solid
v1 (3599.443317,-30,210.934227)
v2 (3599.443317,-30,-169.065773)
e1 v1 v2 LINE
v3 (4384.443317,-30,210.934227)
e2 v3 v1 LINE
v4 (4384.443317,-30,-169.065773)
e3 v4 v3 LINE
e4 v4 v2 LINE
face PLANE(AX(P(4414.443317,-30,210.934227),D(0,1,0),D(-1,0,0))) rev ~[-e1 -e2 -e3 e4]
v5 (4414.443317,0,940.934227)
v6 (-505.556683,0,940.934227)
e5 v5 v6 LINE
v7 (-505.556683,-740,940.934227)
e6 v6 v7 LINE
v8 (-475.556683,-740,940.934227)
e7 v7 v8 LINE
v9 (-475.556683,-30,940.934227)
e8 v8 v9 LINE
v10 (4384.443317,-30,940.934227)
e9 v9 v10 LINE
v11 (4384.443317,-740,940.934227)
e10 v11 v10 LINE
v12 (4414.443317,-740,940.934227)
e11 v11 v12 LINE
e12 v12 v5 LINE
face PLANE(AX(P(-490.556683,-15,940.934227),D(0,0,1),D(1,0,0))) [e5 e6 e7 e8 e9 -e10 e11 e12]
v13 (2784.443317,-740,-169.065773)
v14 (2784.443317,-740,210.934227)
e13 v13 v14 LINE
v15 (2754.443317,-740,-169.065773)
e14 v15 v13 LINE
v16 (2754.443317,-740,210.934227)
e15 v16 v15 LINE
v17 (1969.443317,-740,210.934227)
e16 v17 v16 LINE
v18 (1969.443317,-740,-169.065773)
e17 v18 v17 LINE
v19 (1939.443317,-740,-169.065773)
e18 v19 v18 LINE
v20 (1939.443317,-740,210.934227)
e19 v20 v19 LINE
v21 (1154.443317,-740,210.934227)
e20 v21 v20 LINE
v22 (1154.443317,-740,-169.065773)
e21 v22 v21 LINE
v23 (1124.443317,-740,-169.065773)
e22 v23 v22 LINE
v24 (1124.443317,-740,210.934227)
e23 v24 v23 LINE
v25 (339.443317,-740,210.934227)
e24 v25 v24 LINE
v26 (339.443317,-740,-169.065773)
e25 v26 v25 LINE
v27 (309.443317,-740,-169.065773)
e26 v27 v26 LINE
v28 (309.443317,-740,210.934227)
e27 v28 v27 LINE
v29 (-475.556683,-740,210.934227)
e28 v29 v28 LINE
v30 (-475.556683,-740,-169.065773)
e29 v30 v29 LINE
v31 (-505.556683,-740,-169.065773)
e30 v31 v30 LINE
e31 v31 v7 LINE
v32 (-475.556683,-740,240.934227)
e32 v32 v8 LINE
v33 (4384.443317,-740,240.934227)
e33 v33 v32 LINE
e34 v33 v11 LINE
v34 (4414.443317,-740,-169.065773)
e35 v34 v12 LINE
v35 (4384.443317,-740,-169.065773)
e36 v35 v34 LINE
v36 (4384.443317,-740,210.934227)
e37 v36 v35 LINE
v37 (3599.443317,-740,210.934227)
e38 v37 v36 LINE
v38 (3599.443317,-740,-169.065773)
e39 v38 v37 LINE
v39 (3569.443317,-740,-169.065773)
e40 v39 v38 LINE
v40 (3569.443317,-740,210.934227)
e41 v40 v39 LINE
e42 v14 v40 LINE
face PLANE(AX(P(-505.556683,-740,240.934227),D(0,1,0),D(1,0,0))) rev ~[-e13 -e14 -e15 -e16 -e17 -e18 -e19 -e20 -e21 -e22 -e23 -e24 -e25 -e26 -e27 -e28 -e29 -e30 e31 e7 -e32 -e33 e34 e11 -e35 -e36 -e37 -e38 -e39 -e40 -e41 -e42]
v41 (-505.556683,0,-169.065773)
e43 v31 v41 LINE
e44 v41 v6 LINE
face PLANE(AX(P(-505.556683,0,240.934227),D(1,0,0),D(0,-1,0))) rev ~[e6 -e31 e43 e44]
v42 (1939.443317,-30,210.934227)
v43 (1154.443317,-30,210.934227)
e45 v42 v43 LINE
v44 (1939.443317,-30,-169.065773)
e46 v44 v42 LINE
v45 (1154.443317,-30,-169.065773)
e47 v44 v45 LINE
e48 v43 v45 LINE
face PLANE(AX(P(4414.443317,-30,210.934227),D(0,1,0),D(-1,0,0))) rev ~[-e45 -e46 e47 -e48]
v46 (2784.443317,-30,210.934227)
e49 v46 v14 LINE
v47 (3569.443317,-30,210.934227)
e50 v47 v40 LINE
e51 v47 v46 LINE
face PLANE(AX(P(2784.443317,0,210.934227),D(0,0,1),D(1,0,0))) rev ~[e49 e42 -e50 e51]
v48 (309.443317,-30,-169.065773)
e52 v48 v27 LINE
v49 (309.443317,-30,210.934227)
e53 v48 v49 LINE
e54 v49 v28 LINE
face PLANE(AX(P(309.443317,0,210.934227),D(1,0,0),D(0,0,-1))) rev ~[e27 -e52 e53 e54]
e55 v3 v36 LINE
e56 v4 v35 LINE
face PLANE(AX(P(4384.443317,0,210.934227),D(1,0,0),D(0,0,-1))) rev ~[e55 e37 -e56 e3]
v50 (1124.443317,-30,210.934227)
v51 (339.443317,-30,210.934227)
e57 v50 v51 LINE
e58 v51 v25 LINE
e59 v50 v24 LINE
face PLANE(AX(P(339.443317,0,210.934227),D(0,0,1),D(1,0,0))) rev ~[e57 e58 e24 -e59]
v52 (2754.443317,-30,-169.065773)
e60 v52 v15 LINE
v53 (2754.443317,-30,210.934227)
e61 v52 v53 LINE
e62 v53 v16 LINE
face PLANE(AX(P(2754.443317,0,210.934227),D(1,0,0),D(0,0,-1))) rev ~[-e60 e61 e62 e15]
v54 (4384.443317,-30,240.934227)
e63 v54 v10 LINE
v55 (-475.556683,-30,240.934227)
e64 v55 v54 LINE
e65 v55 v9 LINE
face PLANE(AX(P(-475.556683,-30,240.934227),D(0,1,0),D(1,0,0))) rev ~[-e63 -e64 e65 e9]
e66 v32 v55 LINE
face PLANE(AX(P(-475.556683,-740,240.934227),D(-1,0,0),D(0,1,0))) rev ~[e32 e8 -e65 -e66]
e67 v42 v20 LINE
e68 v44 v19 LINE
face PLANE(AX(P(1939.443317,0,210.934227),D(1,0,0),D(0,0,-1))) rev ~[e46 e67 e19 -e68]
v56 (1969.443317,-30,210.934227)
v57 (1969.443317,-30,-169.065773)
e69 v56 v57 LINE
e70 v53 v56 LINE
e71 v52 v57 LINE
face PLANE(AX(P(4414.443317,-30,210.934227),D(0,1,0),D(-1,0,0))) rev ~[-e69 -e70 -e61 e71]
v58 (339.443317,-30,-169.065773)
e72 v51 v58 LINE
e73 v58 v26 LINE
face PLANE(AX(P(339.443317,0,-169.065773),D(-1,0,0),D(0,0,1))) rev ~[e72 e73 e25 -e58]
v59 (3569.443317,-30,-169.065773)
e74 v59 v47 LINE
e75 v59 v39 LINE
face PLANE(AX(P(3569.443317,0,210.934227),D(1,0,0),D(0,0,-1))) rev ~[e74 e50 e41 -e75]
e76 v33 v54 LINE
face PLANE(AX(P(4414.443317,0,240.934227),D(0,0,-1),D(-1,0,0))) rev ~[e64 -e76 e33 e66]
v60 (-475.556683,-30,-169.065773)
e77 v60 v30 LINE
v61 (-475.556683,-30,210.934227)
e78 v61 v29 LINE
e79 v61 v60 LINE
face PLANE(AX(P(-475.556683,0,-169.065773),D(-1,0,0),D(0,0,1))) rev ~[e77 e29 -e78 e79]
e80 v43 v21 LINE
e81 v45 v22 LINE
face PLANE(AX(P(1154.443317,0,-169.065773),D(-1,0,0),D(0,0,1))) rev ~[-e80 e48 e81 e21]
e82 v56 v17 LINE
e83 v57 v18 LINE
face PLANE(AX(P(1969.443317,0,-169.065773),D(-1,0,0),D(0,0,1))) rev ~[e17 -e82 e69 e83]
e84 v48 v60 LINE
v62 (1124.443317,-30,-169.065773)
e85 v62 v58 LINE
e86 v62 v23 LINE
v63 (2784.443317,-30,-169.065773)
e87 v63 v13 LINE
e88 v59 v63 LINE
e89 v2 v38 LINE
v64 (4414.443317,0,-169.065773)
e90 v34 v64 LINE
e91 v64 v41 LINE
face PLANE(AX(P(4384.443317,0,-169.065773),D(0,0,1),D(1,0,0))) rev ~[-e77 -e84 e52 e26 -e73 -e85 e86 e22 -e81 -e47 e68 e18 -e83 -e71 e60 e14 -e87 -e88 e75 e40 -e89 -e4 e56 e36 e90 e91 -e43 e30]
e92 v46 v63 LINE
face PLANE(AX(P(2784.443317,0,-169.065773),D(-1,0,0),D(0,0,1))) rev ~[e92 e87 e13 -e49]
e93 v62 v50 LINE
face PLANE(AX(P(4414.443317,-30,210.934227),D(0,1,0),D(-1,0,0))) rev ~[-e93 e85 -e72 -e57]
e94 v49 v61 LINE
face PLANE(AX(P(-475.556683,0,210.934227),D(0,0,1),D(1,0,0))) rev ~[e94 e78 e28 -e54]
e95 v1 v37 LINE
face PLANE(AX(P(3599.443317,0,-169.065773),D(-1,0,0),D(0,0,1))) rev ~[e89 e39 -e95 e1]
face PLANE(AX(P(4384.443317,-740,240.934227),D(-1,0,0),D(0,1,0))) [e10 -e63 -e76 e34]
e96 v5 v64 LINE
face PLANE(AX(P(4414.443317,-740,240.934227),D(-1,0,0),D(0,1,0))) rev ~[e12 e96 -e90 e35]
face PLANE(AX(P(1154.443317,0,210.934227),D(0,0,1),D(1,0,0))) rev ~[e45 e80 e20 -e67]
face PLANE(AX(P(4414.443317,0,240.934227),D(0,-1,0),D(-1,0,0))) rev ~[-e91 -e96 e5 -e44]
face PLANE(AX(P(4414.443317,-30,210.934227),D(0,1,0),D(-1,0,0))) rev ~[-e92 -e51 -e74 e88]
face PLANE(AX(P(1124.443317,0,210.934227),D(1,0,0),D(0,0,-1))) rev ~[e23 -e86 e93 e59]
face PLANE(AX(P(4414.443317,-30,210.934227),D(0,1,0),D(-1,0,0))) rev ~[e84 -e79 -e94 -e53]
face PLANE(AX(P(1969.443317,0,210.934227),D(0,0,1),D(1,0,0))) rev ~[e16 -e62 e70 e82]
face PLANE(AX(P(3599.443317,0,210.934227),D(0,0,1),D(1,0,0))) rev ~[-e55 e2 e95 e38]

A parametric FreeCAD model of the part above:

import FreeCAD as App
import Part
import Sketcher

V = App.Vector
Q = App.Units.Quantity


def add_polygon(sketch, points):
    """Adds a closed chain of lines whose ends are joined by coincident constraints."""
    first, n = sketch.GeometryCount, len(points)
    for a, b in zip(points, points[1:] + points[:1]):
        sketch.addGeometry(Part.LineSegment(App.Vector(*a, 0), App.Vector(*b, 0)), False)
    for i in range(n):
        sketch.addConstraint(Sketcher.Constraint("Coincident", first + i, 2, first + (i + 1) % n, 1))

doc = App.newDocument("Part")
params = doc.addObject("Spreadsheet::Sheet", "Params")
for row, (alias, value) in enumerate([
    ("sketch1_width", "4920 mm"),
    ("sketch1_width2", "30 mm"),
    ("sketch1_height", "410 mm"),
    ("sketch1_height2", "380 mm"),
    ("pad1_length", "740 mm"),
    ("sketch2_width", "30 mm"),
    ("sketch2_width2", "4860 mm"),
    ("sketch2_height", "740 mm"),
    ("sketch2_height2", "710 mm"),
    ("pad2_length", "700 mm"),
    ("sketch3_width", "4920 mm"),
    ("sketch3_height", "30 mm"),
], start=1):
    params.set(f"A{row}", alias)
    params.set(f"B{row}", "=" + value)
    params.setAlias(f"B{row}", alias)

body = doc.addObject("PartDesign::Body", "Body")

# Sketch on XZ plane
sketch1 = body.newObject("Sketcher::SketchObject", "Sketch")
sketch1.AttachmentSupport = (doc.getObject("XZ_Plane"), [""])
sketch1.MapMode = "FlatFace"
add_polygon(sketch1, [(4414, 241), (-506, 241), (-506, -169), (-476, -169), (-476, 211), (309, 211), (309, -169), (339, -169), (339, 211), (1124, 211), (1124, -169), (1154, -169), (1154, 211), (1939, 211), (1939, -169), (1969, -169), (1969, 211), (2754, 211), (2754, -169), (2784, -169), (2784, 211), (3569, 211), (3569, -169), (3599, -169), (3599, 211), (4384, 211), (4384, -169), (4414, -169)])  # lines 0-27
sketch1.addConstraint(Sketcher.Constraint("Horizontal", 0))
sketch1.addConstraint(Sketcher.Constraint("Vertical", 1))
sketch1.addConstraint(Sketcher.Constraint("Horizontal", 2))
sketch1.addConstraint(Sketcher.Constraint("Vertical", 3))
sketch1.addConstraint(Sketcher.Constraint("Horizontal", 4))
sketch1.addConstraint(Sketcher.Constraint("Vertical", 5))
sketch1.addConstraint(Sketcher.Constraint("Horizontal", 6))
sketch1.addConstraint(Sketcher.Constraint("Vertical", 7))
sketch1.addConstraint(Sketcher.Constraint("Horizontal", 8))
sketch1.addConstraint(Sketcher.Constraint("Vertical", 9))
sketch1.addConstraint(Sketcher.Constraint("Horizontal", 10))
sketch1.addConstraint(Sketcher.Constraint("Vertical", 11))
sketch1.addConstraint(Sketcher.Constraint("Horizontal", 12))
sketch1.addConstraint(Sketcher.Constraint("Vertical", 13))
sketch1.addConstraint(Sketcher.Constraint("Horizontal", 14))
sketch1.addConstraint(Sketcher.Constraint("Vertical", 15))
sketch1.addConstraint(Sketcher.Constraint("Horizontal", 16))
sketch1.addConstraint(Sketcher.Constraint("Vertical", 17))
sketch1.addConstraint(Sketcher.Constraint("Horizontal", 18))
sketch1.addConstraint(Sketcher.Constraint("Vertical", 19))
sketch1.addConstraint(Sketcher.Constraint("Horizontal", 20))
sketch1.addConstraint(Sketcher.Constraint("Vertical", 21))
sketch1.addConstraint(Sketcher.Constraint("Horizontal", 22))
sketch1.addConstraint(Sketcher.Constraint("Vertical", 23))
sketch1.addConstraint(Sketcher.Constraint("Horizontal", 24))
sketch1.addConstraint(Sketcher.Constraint("Vertical", 25))
sketch1.addConstraint(Sketcher.Constraint("Horizontal", 26))
sketch1.addConstraint(Sketcher.Constraint("Vertical", 27))
sketch1.addConstraint(Sketcher.Constraint("Horizontal", 2, 2, 5, 2))
sketch1.addConstraint(Sketcher.Constraint("Horizontal", 4, 2, 7, 2))
sketch1.addConstraint(Sketcher.Constraint("Horizontal", 6, 2, 9, 2))
sketch1.addConstraint(Sketcher.Constraint("Horizontal", 8, 2, 11, 2))
sketch1.addConstraint(Sketcher.Constraint("Horizontal", 10, 2, 13, 2))
sketch1.addConstraint(Sketcher.Constraint("Horizontal", 12, 2, 15, 2))
sketch1.addConstraint(Sketcher.Constraint("Horizontal", 14, 2, 17, 2))
sketch1.addConstraint(Sketcher.Constraint("Horizontal", 16, 2, 19, 2))
sketch1.addConstraint(Sketcher.Constraint("Horizontal", 18, 2, 21, 2))
sketch1.addConstraint(Sketcher.Constraint("Horizontal", 20, 2, 23, 2))
sketch1.addConstraint(Sketcher.Constraint("Horizontal", 22, 2, 25, 2))
sketch1.addConstraint(Sketcher.Constraint("Equal", 2, 6))
sketch1.addConstraint(Sketcher.Constraint("Equal", 4, 8))
sketch1.addConstraint(Sketcher.Constraint("Equal", 6, 10))
sketch1.addConstraint(Sketcher.Constraint("Equal", 8, 12))
sketch1.addConstraint(Sketcher.Constraint("Equal", 10, 14))
sketch1.addConstraint(Sketcher.Constraint("Equal", 12, 16))
sketch1.addConstraint(Sketcher.Constraint("Equal", 14, 18))
sketch1.addConstraint(Sketcher.Constraint("Equal", 16, 20))
sketch1.addConstraint(Sketcher.Constraint("Equal", 18, 22))
sketch1.addConstraint(Sketcher.Constraint("Equal", 20, 24))
sketch1.addConstraint(Sketcher.Constraint("Equal", 22, 26))
sketch1.addConstraint(Sketcher.Constraint("DistanceX", 0, 2, 0, 1, Q("4920 mm")))
sketch1.addConstraint(Sketcher.Constraint("DistanceX", 2, 1, 2, 2, Q("30 mm")))
sketch1.addConstraint(Sketcher.Constraint("DistanceY", 1, 2, 1, 1, Q("410 mm")))
sketch1.addConstraint(Sketcher.Constraint("DistanceY", 3, 1, 3, 2, Q("380 mm")))
sketch1.addConstraint(Sketcher.Constraint("DistanceX", 0, 2, -1, 1, Q("505.556683 mm")))
sketch1.addConstraint(Sketcher.Constraint("DistanceY", -1, 1, 0, 2, Q("240.934227 mm")))
sketch1.setExpression("Constraints[78]", "Params.sketch1_width")
sketch1.setExpression("Constraints[79]", "Params.sketch1_width2")
sketch1.setExpression("Constraints[80]", "Params.sketch1_height")
sketch1.setExpression("Constraints[81]", "Params.sketch1_height2")
pad1 = body.newObject("PartDesign::Pad", "Pad")
pad1.Profile = sketch1
pad1.setExpression("Length", "Params.pad1_length")

# Sketch on XY plane
sketch2 = body.newObject("Sketcher::SketchObject", "Sketch001")
sketch2.AttachmentSupport = (doc.getObject("XY_Plane"), [""])
sketch2.MapMode = "FlatFace"
sketch2.AttachmentOffset = App.Placement(V(0, 0, 240.934227), App.Rotation())
add_polygon(sketch2, [(-506, 0), (-506, -740), (-476, -740), (-476, -30), (4384, -30), (4384, -740), (4414, -740), (4414, 0)])  # lines 0-7
sketch2.addConstraint(Sketcher.Constraint("Vertical", 0))
sketch2.addConstraint(Sketcher.Constraint("Horizontal", 1))
sketch2.addConstraint(Sketcher.Constraint("Vertical", 2))
sketch2.addConstraint(Sketcher.Constraint("Horizontal", 3))
sketch2.addConstraint(Sketcher.Constraint("Vertical", 4))
sketch2.addConstraint(Sketcher.Constraint("Horizontal", 5))
sketch2.addConstraint(Sketcher.Constraint("Vertical", 6))
sketch2.addConstraint(Sketcher.Constraint("Horizontal", 7))
sketch2.addConstraint(Sketcher.Constraint("PointOnObject", 6, 2, -1))
sketch2.addConstraint(Sketcher.Constraint("Horizontal", 1, 2, 4, 2))
sketch2.addConstraint(Sketcher.Constraint("Equal", 1, 5))
sketch2.addConstraint(Sketcher.Constraint("DistanceX", 1, 1, 1, 2, Q("30 mm")))
sketch2.addConstraint(Sketcher.Constraint("DistanceX", 3, 1, 3, 2, Q("4860 mm")))
sketch2.addConstraint(Sketcher.Constraint("DistanceY", 0, 2, 0, 1, Q("740 mm")))
sketch2.addConstraint(Sketcher.Constraint("DistanceY", 2, 1, 2, 2, Q("710 mm")))
sketch2.addConstraint(Sketcher.Constraint("DistanceX", 0, 2, -1, 1, Q("505.556683 mm")))
sketch2.setExpression("Constraints[19]", "Params.sketch2_width")
sketch2.setExpression("Constraints[20]", "Params.sketch2_width2")
sketch2.setExpression("Constraints[21]", "Params.sketch2_height")
sketch2.setExpression("Constraints[22]", "Params.sketch2_height2")
pad2 = body.newObject("PartDesign::Pad", "Pad001")
pad2.Profile = sketch2
pad2.setExpression("Length", "Params.pad2_length")

# Sketch on XY plane
sketch3 = body.newObject("Sketcher::SketchObject", "Sketch002")
sketch3.AttachmentSupport = (doc.getObject("XY_Plane"), [""])
sketch3.MapMode = "FlatFace"
sketch3.AttachmentOffset = App.Placement(V(0, 0, 210.934227), App.Rotation())
add_polygon(sketch3, [(4414, 0), (4414, -30), (-506, -30), (-506, 0)])  # lines 0-3
sketch3.addConstraint(Sketcher.Constraint("Vertical", 0))
sketch3.addConstraint(Sketcher.Constraint("Horizontal", 1))
sketch3.addConstraint(Sketcher.Constraint("Vertical", 2))
sketch3.addConstraint(Sketcher.Constraint("Horizontal", 3))
sketch3.addConstraint(Sketcher.Constraint("PointOnObject", 2, 2, -1))
sketch3.addConstraint(Sketcher.Constraint("DistanceX", 1, 2, 1, 1, Q("4920 mm")))
sketch3.addConstraint(Sketcher.Constraint("DistanceY", 0, 2, 0, 1, Q("30 mm")))
sketch3.addConstraint(Sketcher.Constraint("DistanceX", -1, 1, 0, 2, Q("4414.443317 mm")))
sketch3.setExpression("Constraints[9]", "Params.sketch3_width")
sketch3.setExpression("Constraints[10]", "Params.sketch3_height")
pad3 = body.newObject("PartDesign::Pad", "Pad002")
pad3.Profile = sketch3
pad3.Type = "UpToLast"
pad3.Reversed = True

doc.recompute()
